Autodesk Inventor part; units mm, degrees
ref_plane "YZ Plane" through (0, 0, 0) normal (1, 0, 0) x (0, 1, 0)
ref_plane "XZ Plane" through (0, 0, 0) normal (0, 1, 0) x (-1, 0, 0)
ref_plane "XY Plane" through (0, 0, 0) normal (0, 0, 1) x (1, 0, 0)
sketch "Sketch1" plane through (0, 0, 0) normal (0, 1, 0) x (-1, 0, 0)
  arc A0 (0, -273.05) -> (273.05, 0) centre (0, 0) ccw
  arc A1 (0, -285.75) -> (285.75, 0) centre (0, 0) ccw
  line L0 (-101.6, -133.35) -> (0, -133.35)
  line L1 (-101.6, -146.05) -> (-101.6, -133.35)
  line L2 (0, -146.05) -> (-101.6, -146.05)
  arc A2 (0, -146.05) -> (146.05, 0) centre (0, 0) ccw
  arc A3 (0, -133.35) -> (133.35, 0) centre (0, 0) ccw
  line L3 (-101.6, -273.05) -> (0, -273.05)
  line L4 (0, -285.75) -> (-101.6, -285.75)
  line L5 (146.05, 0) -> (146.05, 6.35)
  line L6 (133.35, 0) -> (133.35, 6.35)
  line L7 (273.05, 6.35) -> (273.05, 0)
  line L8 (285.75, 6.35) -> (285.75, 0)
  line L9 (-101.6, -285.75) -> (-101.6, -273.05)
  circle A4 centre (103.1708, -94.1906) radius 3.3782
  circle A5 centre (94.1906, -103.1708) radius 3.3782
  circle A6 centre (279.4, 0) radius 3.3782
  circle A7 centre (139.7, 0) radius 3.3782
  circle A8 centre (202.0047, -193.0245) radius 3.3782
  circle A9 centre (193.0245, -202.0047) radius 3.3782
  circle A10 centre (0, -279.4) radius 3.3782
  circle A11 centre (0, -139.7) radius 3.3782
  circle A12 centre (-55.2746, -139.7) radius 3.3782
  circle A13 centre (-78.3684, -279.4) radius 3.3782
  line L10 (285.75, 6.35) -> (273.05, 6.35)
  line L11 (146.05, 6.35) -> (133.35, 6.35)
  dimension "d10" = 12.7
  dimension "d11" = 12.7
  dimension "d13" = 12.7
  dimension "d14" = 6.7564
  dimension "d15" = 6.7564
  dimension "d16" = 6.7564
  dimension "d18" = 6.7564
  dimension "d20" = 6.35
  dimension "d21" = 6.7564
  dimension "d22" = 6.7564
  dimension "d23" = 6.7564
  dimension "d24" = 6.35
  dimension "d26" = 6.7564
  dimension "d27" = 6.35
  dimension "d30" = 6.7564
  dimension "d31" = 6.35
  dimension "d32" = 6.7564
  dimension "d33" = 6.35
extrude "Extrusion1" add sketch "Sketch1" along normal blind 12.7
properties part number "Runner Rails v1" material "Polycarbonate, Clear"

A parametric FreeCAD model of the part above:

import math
import FreeCAD as App
import Part
import Sketcher
from FreeCAD import Vector
Q = App.Units.Quantity

doc = App.newDocument("Part")
body = doc.addObject("PartDesign::Body", "Body")
body.AllowCompound = True

# Sketch on XZ plane
sketch1 = body.newObject("Sketcher::SketchObject", "Sketch")
sketch1.AttachmentSupport = (doc.getObject("XZ_Plane"), [""])
sketch1.MapMode = "FlatFace"
sketch1.addGeometry([
    Part.ArcOfCircle(Part.Circle(Vector(0, 0, 0), Vector(0, 0, 1), 273.1), math.radians(180), math.radians(270)),  # 0
    Part.LineSegment(Vector(0, -273.1, 0), Vector(101.6, -273.1, 0)),  # 1
    Part.LineSegment(Vector(101.6, -273.1, 0), Vector(101.6, -285.8, 0)),  # 2
    Part.LineSegment(Vector(101.6, -285.8, 0), Vector(0, -285.8, 0)),  # 3
    Part.ArcOfCircle(Part.Circle(Vector(0, 0, 0), Vector(0, 0, 1), 285.8), math.radians(180), math.radians(270)),  # 4
    Part.LineSegment(Vector(-285.8, 0, 0), Vector(-285.8, 6.3, 0)),  # 5
    Part.LineSegment(Vector(-285.8, 6.3, 0), Vector(-273.1, 6.3, 0)),  # 6
    Part.LineSegment(Vector(-273.1, 6.3, 0), Vector(-273.1, 0, 0)),  # 7
    Part.Circle(Vector(78.4, -279.4, 0), Vector(0, 0, 1), 3.4),  # 8
    Part.Circle(Vector(0, -279.4, 0), Vector(0, 0, 1), 3.4),  # 9
    Part.Circle(Vector(-193, -202, 0), Vector(0, 0, 1), 3.4),  # 10
    Part.Circle(Vector(-202, -193, 0), Vector(0, 0, 1), 3.4),  # 11
    Part.Circle(Vector(-279.4, 0, 0), Vector(0, 0, 1), 3.4),  # 12
    Part.LineSegment(Vector(0, -133.3, 0), Vector(101.6, -133.3, 0)),  # 13
    Part.LineSegment(Vector(101.6, -133.3, 0), Vector(101.6, -146.1, 0)),  # 14
    Part.LineSegment(Vector(101.6, -146.1, 0), Vector(0, -146.1, 0)),  # 15
    Part.ArcOfCircle(Part.Circle(Vector(0, 0, 0), Vector(0, 0, 1), 146.1), math.radians(180), math.radians(270)),  # 16
    Part.LineSegment(Vector(-146.1, 0, 0), Vector(-146.1, 6.3, 0)),  # 17
    Part.LineSegment(Vector(-146.1, 6.3, 0), Vector(-133.3, 6.3, 0)),  # 18
    Part.LineSegment(Vector(-133.3, 6.3, 0), Vector(-133.3, 0, 0)),  # 19
    Part.ArcOfCircle(Part.Circle(Vector(0, 0, 0), Vector(0, 0, 1), 133.3), math.radians(180), math.radians(270)),  # 20
    Part.Circle(Vector(55.3, -139.7, 0), Vector(0, 0, 1), 3.4),  # 21
    Part.Circle(Vector(0, -139.7, 0), Vector(0, 0, 1), 3.4),  # 22
    Part.Circle(Vector(-94.2, -103.2, 0), Vector(0, 0, 1), 3.4),  # 23
    Part.Circle(Vector(-103.2, -94.2, 0), Vector(0, 0, 1), 3.4),  # 24
    Part.Circle(Vector(-139.7, 0, 0), Vector(0, 0, 1), 3.4),  # 25
], False)
sketch1.addConstraint([
    Sketcher.Constraint("Tangent", 0, 2, 1, 1),
    Sketcher.Constraint("Coincident", 1, 2, 2, 1),
    Sketcher.Constraint("Coincident", 2, 2, 3, 1),
    Sketcher.Constraint("Tangent", 3, 2, 4, 2),
    Sketcher.Constraint("Tangent", 4, 1, 5, 1),
    Sketcher.Constraint("Coincident", 5, 2, 6, 1),
    Sketcher.Constraint("Coincident", 6, 2, 7, 1),
    Sketcher.Constraint("Tangent", 7, 2, 0, 1),
    Sketcher.Constraint("Coincident", 13, 2, 14, 1),
    Sketcher.Constraint("Coincident", 14, 2, 15, 1),
    Sketcher.Constraint("Tangent", 15, 2, 16, 2),
    Sketcher.Constraint("Tangent", 16, 1, 17, 1),
    Sketcher.Constraint("Coincident", 17, 2, 18, 1),
    Sketcher.Constraint("Coincident", 18, 2, 19, 1),
    Sketcher.Constraint("Tangent", 19, 2, 20, 1),
    Sketcher.Constraint("Tangent", 20, 2, 13, 1),
    Sketcher.Constraint("Horizontal", 1),
    Sketcher.Constraint("Vertical", 2),
    Sketcher.Constraint("Horizontal", 3),
    Sketcher.Constraint("Vertical", 5),
    Sketcher.Constraint("Horizontal", 6),
    Sketcher.Constraint("Vertical", 7),
    Sketcher.Constraint("Horizontal", 13),
    Sketcher.Constraint("Vertical", 14),
    Sketcher.Constraint("Horizontal", 15),
    Sketcher.Constraint("Vertical", 17),
    Sketcher.Constraint("Horizontal", 18),
    Sketcher.Constraint("Vertical", 19),
    Sketcher.Constraint("Coincident", 0, 3, -1, 1),
    Sketcher.Constraint("Coincident", 4, 3, -1, 1),
    Sketcher.Constraint("Coincident", 16, 3, -1, 1),
    Sketcher.Constraint("Coincident", 20, 3, -1, 1),
    Sketcher.Constraint("Equal", 8, 9),
    Sketcher.Constraint("Equal", 9, 10),
    Sketcher.Constraint("Equal", 10, 11),
    Sketcher.Constraint("Equal", 11, 12),
    Sketcher.Constraint("Equal", 12, 21),
    Sketcher.Constraint("Equal", 21, 22),
    Sketcher.Constraint("Equal", 22, 23),
    Sketcher.Constraint("Equal", 23, 24),
    Sketcher.Constraint("Equal", 24, 25),
    Sketcher.Constraint("PointOnObject", 9, 3, -2),
    Sketcher.Constraint("PointOnObject", 12, 3, -1),
    Sketcher.Constraint("PointOnObject", 22, 3, -2),
    Sketcher.Constraint("PointOnObject", 25, 3, -1),
    Sketcher.Constraint("Horizontal", 8, 3, 9, 3),
    Sketcher.Constraint("Horizontal", 21, 3, 22, 3),
    Sketcher.Constraint("Horizontal", 6, 2, 17, 2),
    Sketcher.Constraint("Vertical", 2, 2, 13, 2),
    Sketcher.Constraint("Equal", 6, 18),
    Sketcher.Constraint("Diameter", 8, Q("0.266 in")),
    Sketcher.Constraint("DistanceX", 6, 1, 6, 2, Q("0.5 in")),
    Sketcher.Constraint("DistanceY", 5, 1, 5, 2, Q("0.25 in")),
    Sketcher.Constraint("DistanceX", 1, 1, 1, 2, Q("4 in")),
    Sketcher.Constraint("Radius", 0, Q("10.75 in")),
    Sketcher.Constraint("Radius", 16, Q("5.75 in")),
    Sketcher.Constraint("DistanceY", 9, 3, 0, 2, Q("0.25 in")),
    Sketcher.Constraint("DistanceX", 4, 1, 12, 3, Q("0.25 in")),
    Sketcher.Constraint("DistanceY", 21, 3, 13, 2, Q("0.25 in")),
    Sketcher.Constraint("DistanceX", 16, 1, 25, 3, Q("0.25 in")),
    Sketcher.Constraint("DistanceX", 10, 3, -1, 1, Q("7.5994 in")),
    Sketcher.Constraint("DistanceY", 11, 3, -1, 1, Q("7.5994 in")),
    Sketcher.Constraint("DistanceX", 23, 3, -1, 1, Q("3.7083 in")),
    Sketcher.Constraint("DistanceY", 24, 3, -1, 1, Q("3.7083 in")),
    Sketcher.Constraint("DistanceX", 11, 3, 8, 3, Q("11.0383 in")),
    Sketcher.Constraint("DistanceX", 21, 3, 8, 3, Q("0.9092 in")),
    Sketcher.Constraint("DistanceX", -1, 1, 8, 3, 78.3684),
    Sketcher.Constraint("DistanceY", 10, 3, -1, 1, 202.0047),
    Sketcher.Constraint("DistanceY", 23, 3, -1, 1, 103.1708),
    Sketcher.Constraint("DistanceX", 24, 3, -1, 1, 103.1708),
])
pad1 = body.newObject("PartDesign::Pad", "Pad")
pad1.Profile = sketch1
pad1.Length = Q("0.5 in")
pad1.Reversed = True

doc.recompute()
